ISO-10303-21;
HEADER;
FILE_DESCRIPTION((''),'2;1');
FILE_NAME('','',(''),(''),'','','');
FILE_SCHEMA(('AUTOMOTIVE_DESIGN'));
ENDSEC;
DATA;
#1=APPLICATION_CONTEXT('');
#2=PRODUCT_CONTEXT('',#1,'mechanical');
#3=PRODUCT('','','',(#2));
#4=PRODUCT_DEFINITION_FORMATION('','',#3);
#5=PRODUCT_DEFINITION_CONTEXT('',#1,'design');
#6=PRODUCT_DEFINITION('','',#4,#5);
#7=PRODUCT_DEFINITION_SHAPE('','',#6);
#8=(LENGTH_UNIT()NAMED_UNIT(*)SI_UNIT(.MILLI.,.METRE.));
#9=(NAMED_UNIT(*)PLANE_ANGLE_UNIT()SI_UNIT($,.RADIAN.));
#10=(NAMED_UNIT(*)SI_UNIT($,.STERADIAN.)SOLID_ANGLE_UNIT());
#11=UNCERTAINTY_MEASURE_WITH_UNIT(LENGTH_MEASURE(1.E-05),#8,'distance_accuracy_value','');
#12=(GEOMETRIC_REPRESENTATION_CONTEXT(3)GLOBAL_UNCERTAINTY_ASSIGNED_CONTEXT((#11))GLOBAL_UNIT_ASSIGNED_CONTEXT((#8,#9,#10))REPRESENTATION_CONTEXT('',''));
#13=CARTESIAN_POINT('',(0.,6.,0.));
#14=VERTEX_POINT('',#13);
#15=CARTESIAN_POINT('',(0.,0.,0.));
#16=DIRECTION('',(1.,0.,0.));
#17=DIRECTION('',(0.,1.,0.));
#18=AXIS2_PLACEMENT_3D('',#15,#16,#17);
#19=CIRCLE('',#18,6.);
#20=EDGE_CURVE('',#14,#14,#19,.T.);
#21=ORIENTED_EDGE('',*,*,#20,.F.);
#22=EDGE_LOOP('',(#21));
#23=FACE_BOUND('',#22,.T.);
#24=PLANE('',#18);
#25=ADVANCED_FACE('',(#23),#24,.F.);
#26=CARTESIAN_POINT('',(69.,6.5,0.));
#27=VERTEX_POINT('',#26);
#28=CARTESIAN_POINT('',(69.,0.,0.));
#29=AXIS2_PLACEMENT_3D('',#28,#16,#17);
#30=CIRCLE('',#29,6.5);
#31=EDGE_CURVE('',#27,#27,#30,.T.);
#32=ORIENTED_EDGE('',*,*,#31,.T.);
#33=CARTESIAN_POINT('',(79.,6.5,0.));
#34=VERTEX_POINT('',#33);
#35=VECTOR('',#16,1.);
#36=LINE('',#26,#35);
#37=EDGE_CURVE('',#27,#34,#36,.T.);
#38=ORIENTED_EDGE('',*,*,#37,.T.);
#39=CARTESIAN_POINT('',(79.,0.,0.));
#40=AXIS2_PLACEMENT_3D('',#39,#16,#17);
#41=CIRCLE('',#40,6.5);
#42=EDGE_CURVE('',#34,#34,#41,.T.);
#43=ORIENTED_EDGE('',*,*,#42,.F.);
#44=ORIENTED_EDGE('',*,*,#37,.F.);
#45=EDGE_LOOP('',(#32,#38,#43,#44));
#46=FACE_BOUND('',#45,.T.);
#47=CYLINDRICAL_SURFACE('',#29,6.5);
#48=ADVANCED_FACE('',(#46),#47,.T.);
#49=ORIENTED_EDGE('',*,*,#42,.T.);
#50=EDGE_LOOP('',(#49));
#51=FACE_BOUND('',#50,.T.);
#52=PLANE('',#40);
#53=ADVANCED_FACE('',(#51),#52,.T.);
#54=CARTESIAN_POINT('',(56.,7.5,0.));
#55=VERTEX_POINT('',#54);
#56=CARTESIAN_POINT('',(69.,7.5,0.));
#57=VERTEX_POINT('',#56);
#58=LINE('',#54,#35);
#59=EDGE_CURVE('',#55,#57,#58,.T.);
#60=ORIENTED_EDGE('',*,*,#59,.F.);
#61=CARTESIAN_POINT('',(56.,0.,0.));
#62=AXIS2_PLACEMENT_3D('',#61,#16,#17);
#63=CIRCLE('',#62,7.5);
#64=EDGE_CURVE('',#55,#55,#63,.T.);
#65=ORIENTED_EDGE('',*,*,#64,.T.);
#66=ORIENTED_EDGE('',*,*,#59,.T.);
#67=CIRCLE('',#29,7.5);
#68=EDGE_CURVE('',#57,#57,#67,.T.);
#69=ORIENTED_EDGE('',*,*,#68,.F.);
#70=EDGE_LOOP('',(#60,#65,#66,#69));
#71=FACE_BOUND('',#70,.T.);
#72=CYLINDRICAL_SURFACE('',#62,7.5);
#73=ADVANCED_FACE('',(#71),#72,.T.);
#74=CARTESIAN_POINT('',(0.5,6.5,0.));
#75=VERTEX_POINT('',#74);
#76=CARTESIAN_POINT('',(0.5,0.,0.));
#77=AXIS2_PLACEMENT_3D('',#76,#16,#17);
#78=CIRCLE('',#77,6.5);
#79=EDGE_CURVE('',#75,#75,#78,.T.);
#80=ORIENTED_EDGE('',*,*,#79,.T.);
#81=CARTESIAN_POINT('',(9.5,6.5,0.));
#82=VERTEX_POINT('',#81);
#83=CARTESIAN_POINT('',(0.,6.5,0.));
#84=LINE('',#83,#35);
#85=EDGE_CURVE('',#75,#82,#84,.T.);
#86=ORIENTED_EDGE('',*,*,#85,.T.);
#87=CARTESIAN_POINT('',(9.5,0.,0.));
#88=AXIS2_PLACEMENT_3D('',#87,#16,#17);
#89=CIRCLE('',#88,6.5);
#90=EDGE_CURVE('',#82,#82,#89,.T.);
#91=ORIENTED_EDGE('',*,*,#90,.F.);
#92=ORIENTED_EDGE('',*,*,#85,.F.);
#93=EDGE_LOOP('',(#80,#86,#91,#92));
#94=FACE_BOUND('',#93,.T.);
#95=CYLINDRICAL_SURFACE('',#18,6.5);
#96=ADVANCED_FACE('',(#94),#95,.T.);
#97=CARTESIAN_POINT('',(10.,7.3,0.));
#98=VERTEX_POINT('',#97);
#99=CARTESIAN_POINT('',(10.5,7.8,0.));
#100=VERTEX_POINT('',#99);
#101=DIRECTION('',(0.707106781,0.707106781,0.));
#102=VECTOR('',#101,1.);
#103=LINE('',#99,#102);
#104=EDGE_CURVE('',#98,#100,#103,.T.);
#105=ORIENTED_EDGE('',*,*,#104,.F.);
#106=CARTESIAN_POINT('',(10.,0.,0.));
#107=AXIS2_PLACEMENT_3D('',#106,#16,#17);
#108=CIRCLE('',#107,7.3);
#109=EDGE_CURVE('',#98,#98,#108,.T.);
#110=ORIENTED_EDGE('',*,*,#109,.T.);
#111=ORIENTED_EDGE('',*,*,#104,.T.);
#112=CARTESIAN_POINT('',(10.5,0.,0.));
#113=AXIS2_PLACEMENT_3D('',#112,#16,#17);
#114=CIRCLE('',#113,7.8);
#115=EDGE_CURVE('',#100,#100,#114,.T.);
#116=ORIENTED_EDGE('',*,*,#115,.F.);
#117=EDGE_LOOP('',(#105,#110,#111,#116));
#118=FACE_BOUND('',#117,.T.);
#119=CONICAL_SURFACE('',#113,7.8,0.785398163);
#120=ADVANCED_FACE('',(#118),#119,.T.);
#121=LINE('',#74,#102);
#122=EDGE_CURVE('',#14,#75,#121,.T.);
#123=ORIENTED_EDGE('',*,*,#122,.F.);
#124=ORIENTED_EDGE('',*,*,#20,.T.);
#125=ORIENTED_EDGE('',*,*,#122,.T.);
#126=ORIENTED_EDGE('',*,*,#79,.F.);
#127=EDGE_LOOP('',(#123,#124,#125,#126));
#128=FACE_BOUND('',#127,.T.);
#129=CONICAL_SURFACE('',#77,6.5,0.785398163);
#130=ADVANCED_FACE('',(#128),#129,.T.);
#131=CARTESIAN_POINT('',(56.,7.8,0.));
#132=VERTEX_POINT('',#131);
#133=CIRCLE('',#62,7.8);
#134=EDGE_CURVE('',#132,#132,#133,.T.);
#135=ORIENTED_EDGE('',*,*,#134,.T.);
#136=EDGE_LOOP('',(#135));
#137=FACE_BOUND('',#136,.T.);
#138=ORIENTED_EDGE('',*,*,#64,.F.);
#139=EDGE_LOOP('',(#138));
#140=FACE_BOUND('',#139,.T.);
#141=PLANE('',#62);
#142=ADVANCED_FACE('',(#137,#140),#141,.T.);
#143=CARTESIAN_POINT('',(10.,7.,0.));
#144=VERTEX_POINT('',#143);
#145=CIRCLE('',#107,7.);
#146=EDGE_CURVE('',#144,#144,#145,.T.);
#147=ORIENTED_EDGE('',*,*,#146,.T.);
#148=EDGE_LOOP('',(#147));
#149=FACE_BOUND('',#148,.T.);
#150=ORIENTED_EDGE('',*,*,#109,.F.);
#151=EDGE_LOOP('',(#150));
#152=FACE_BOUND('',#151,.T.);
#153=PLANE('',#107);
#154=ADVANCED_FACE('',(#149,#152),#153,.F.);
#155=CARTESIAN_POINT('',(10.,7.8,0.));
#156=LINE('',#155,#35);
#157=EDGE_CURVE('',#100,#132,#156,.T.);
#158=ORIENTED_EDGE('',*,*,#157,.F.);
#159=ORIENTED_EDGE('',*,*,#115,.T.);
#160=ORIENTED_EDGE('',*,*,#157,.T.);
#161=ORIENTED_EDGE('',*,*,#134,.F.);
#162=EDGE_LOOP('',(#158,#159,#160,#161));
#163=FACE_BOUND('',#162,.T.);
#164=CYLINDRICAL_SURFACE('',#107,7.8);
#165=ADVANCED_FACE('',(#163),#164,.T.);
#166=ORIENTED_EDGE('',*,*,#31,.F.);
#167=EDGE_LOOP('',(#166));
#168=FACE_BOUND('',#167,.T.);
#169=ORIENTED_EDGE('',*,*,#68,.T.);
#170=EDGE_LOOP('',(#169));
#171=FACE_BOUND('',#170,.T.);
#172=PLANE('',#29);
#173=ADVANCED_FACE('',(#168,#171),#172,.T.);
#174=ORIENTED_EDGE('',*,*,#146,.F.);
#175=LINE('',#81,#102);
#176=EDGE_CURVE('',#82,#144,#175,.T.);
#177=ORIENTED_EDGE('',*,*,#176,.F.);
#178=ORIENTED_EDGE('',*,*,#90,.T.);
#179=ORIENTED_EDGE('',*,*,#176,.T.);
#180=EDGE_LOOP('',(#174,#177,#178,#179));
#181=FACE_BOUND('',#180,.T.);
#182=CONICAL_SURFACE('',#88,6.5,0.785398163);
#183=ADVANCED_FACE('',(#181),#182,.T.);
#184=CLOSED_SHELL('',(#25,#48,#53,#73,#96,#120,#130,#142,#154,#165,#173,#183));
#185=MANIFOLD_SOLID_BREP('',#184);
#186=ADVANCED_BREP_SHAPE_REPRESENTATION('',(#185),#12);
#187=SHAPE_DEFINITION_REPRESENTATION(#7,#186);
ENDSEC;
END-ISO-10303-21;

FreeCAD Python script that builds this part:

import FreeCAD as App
import Part
import Sketcher


def edges_at(feature, points):
    """Names of the edges that pass closest to the given points."""
    edges = feature.Shape.Edges
    near = lambda p: min(range(len(edges)), key=lambda i: edges[i].distToShape(Part.Vertex(*p))[0])
    return sorted({f"Edge{near(p) + 1}" for p in points})

doc = App.newDocument("Part")
params = doc.addObject("Spreadsheet::Sheet", "Params")
for row, (alias, value) in enumerate([
    ("sketch1_width", "13 mm"),
    ("sketch1_width2", "79 mm"),
    ("sketch1_width3", "10 mm"),
    ("sketch1_height", "1 mm"),
    ("sketch1_height2", "6.5 mm"),
    ("revolution_angle", "360 deg"),
    ("chamfer_size", "0.5 mm"),
    ("chamfer2_size", "0.5 mm"),
    ("chamfer3_size", "0.5 mm"),
], start=1):
    params.set(f"A{row}", alias)
    params.set(f"B{row}", "=" + value)
    params.setAlias(f"B{row}", alias)

body = doc.addObject("PartDesign::Body", "Body")

# Sketch on XY plane
sketch1 = body.newObject("Sketcher::SketchObject", "Sketch")
sketch1.AttachmentSupport = (doc.getObject("XY_Plane"), [""])
sketch1.MapMode = "FlatFace"
sketch1.addGeometry([
    Part.LineSegment(App.Vector(0, 6.5, 0), App.Vector(0, 0, 0)),  # 0
    Part.LineSegment(App.Vector(0, 0, 0), App.Vector(79, 0, 0)),  # 1
    Part.LineSegment(App.Vector(79, 0, 0), App.Vector(79, 6.5, 0)),  # 2
    Part.LineSegment(App.Vector(79, 6.5, 0), App.Vector(69, 6.5, 0)),  # 3
    Part.LineSegment(App.Vector(69, 6.5, 0), App.Vector(69, 7.5, 0)),  # 4
    Part.LineSegment(App.Vector(69, 7.5, 0), App.Vector(56, 7.5, 0)),  # 5
    Part.LineSegment(App.Vector(56, 7.5, 0), App.Vector(56, 7.8, 0)),  # 6
    Part.LineSegment(App.Vector(56, 7.8, 0), App.Vector(10, 7.8, 0)),  # 7
    Part.LineSegment(App.Vector(10, 7.8, 0), App.Vector(10, 6.5, 0)),  # 8
    Part.LineSegment(App.Vector(10, 6.5, 0), App.Vector(0, 6.5, 0)),  # 9
], False)
sketch1.addConstraint([
    Sketcher.Constraint("Coincident", 0, 2, 1, 1),
    Sketcher.Constraint("Coincident", 1, 2, 2, 1),
    Sketcher.Constraint("Coincident", 2, 2, 3, 1),
    Sketcher.Constraint("Coincident", 3, 2, 4, 1),
    Sketcher.Constraint("Coincident", 4, 2, 5, 1),
    Sketcher.Constraint("Coincident", 5, 2, 6, 1),
    Sketcher.Constraint("Coincident", 6, 2, 7, 1),
    Sketcher.Constraint("Coincident", 7, 2, 8, 1),
    Sketcher.Constraint("Coincident", 8, 2, 9, 1),
    Sketcher.Constraint("Coincident", 9, 2, 0, 1),
    Sketcher.Constraint("Vertical", 0),
    Sketcher.Constraint("Horizontal", 1),
    Sketcher.Constraint("Vertical", 2),
    Sketcher.Constraint("Horizontal", 3),
    Sketcher.Constraint("Vertical", 4),
    Sketcher.Constraint("Horizontal", 5),
    Sketcher.Constraint("Vertical", 6),
    Sketcher.Constraint("Horizontal", 7),
    Sketcher.Constraint("Vertical", 8),
    Sketcher.Constraint("Horizontal", 9),
    Sketcher.Constraint("Coincident", 0, 2, -1, 1),
    Sketcher.Constraint("Horizontal", 3, 2, 8, 2),
    Sketcher.Constraint("Equal", 3, 9),
    Sketcher.Constraint("DistanceX", 5, 2, 5, 1, 13.0),
    Sketcher.Constraint("DistanceX", 1, 1, 1, 2, 79.0),
    Sketcher.Constraint("DistanceX", 3, 2, 3, 1, 10.0),
    Sketcher.Constraint("DistanceY", 4, 1, 4, 2, 1.0),
    Sketcher.Constraint("DistanceY", 0, 2, 0, 1, 6.5),
    Sketcher.Constraint("DistanceY", 6, 1, 6, 2, 0.3),
])
sketch1.setExpression("Constraints[23]", "Params.sketch1_width")
sketch1.setExpression("Constraints[24]", "Params.sketch1_width2")
sketch1.setExpression("Constraints[25]", "Params.sketch1_width3")
sketch1.setExpression("Constraints[26]", "Params.sketch1_height")
sketch1.setExpression("Constraints[27]", "Params.sketch1_height2")
revolution = body.newObject("PartDesign::Revolution", "Revolution")
revolution.Profile = sketch1
revolution.ReferenceAxis = (sketch1, ["H_Axis"])
revolution.setExpression("Angle", "Params.revolution_angle")
doc.recompute()

chamfer = body.newObject("PartDesign::Chamfer", "Chamfer")
chamfer.Base = (revolution, edges_at(revolution, [(0, -6.5, 0)]))
chamfer.setExpression("Size", "Params.chamfer_size")
doc.recompute()

chamfer2 = body.newObject("PartDesign::Chamfer", "Chamfer001")
chamfer2.Base = (chamfer, edges_at(chamfer, [(10, -6.5, 0)]))
chamfer2.setExpression("Size", "Params.chamfer2_size")
doc.recompute()

chamfer3 = body.newObject("PartDesign::Chamfer", "Chamfer002")
chamfer3.Base = (chamfer2, edges_at(chamfer2, [(10, -7.8, 0)]))
chamfer3.setExpression("Size", "Params.chamfer3_size")

doc.recompute()
